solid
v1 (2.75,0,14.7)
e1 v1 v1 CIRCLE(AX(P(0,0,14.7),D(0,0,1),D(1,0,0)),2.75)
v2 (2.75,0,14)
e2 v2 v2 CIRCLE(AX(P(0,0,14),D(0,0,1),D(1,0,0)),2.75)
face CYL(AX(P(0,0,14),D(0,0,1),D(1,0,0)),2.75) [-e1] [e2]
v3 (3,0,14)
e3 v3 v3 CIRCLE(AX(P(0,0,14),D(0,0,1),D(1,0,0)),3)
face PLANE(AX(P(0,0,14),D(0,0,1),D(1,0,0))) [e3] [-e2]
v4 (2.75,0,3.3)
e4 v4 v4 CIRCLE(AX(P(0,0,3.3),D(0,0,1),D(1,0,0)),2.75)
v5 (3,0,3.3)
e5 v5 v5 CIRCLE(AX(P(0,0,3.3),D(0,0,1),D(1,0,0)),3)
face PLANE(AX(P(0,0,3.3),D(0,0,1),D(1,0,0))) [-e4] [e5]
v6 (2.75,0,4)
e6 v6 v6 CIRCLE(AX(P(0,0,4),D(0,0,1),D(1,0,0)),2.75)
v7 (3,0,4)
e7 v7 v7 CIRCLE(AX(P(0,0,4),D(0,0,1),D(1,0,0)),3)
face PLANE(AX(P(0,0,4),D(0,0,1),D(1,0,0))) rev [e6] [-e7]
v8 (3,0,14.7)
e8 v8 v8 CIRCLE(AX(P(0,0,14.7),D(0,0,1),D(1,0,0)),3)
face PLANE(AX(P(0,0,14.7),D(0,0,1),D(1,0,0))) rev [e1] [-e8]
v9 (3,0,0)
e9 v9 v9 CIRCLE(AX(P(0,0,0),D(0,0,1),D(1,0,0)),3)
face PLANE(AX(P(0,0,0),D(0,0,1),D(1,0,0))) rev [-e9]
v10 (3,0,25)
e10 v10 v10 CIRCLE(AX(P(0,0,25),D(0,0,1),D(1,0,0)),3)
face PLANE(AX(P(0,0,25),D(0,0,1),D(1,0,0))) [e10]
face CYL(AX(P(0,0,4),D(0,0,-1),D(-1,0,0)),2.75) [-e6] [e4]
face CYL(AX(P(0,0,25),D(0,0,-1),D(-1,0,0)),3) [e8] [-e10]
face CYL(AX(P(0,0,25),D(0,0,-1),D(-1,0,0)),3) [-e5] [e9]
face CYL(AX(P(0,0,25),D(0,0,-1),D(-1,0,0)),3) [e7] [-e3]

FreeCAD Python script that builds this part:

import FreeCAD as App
import Part
import Sketcher

V = App.Vector
Q = App.Units.Quantity

doc = App.newDocument("Part")
body = doc.addObject("PartDesign::Body", "Body")

sketch1 = body.newObject("Sketcher::SketchObject", "Sketch")
sketch1.AttachmentSupport = (doc.getObject("XY_Plane"), [""])
sketch1.MapMode = "FlatFace"
sketch1.addGeometry(Part.Circle(V(0, 0, 0), V(0, 0, 1), 3), False)
sketch1.addConstraint(Sketcher.Constraint("Coincident", 0, 3, -1, 1))
sketch1.addConstraint(Sketcher.Constraint("Diameter", 0, Q("6 mm")))
pad1 = body.newObject("PartDesign::Pad", "Pad")
pad1.Profile = sketch1
pad1.Length = 25

sketch2 = body.newObject("Sketcher::SketchObject", "Sketch001")
sketch2.AttachmentSupport = (doc.getObject("XY_Plane"), [""])
sketch2.MapMode = "FlatFace"
sketch2.AttachmentOffset = App.Placement(V(0, 0, 3.65), App.Rotation())
sketch2.addGeometry(Part.Circle(V(0, 0, 0), V(0, 0, 1), 3), False)
sketch2.addGeometry(Part.Circle(V(0, 0, 0), V(0, 0, 1), 2.75), False)
sketch2.addConstraint(Sketcher.Constraint("Coincident", 0, 3, -1, 1))
sketch2.addConstraint(Sketcher.Constraint("Coincident", 1, 3, -1, 1))
sketch2.addConstraint(Sketcher.Constraint("Diameter", 0, Q("6 mm")))
sketch2.addConstraint(Sketcher.Constraint("Diameter", 1, Q("5.5 mm")))
pocket1 = body.newObject("PartDesign::Pocket", "Pocket")
pocket1.Profile = sketch2
pocket1.Type = "TwoLengths"
pocket1.Length = 0.35
pocket1.Length2 = 0.35
pocket1.Reversed = True

sketch3 = body.newObject("Sketcher::SketchObject", "Sketch002")
sketch3.AttachmentSupport = (doc.getObject("XY_Plane"), [""])
sketch3.MapMode = "FlatFace"
sketch3.AttachmentOffset = App.Placement(V(0, 0, 14), App.Rotation())
sketch3.addGeometry(Part.Circle(V(0, 0, 0), V(0, 0, 1), 3), False)
sketch3.addGeometry(Part.Circle(V(0, 0, 0), V(0, 0, 1), 2.75), False)
sketch3.addConstraint(Sketcher.Constraint("Coincident", 0, 3, -1, 1))
sketch3.addConstraint(Sketcher.Constraint("Coincident", 1, 3, -1, 1))
sketch3.addConstraint(Sketcher.Constraint("Diameter", 0, Q("6 mm")))
sketch3.addConstraint(Sketcher.Constraint("Diameter", 1, Q("5.5 mm")))
pocket2 = body.newObject("PartDesign::Pocket", "Pocket001")
pocket2.Profile = sketch3
pocket2.Length = 0.7
pocket2.Reversed = True

doc.recompute()
